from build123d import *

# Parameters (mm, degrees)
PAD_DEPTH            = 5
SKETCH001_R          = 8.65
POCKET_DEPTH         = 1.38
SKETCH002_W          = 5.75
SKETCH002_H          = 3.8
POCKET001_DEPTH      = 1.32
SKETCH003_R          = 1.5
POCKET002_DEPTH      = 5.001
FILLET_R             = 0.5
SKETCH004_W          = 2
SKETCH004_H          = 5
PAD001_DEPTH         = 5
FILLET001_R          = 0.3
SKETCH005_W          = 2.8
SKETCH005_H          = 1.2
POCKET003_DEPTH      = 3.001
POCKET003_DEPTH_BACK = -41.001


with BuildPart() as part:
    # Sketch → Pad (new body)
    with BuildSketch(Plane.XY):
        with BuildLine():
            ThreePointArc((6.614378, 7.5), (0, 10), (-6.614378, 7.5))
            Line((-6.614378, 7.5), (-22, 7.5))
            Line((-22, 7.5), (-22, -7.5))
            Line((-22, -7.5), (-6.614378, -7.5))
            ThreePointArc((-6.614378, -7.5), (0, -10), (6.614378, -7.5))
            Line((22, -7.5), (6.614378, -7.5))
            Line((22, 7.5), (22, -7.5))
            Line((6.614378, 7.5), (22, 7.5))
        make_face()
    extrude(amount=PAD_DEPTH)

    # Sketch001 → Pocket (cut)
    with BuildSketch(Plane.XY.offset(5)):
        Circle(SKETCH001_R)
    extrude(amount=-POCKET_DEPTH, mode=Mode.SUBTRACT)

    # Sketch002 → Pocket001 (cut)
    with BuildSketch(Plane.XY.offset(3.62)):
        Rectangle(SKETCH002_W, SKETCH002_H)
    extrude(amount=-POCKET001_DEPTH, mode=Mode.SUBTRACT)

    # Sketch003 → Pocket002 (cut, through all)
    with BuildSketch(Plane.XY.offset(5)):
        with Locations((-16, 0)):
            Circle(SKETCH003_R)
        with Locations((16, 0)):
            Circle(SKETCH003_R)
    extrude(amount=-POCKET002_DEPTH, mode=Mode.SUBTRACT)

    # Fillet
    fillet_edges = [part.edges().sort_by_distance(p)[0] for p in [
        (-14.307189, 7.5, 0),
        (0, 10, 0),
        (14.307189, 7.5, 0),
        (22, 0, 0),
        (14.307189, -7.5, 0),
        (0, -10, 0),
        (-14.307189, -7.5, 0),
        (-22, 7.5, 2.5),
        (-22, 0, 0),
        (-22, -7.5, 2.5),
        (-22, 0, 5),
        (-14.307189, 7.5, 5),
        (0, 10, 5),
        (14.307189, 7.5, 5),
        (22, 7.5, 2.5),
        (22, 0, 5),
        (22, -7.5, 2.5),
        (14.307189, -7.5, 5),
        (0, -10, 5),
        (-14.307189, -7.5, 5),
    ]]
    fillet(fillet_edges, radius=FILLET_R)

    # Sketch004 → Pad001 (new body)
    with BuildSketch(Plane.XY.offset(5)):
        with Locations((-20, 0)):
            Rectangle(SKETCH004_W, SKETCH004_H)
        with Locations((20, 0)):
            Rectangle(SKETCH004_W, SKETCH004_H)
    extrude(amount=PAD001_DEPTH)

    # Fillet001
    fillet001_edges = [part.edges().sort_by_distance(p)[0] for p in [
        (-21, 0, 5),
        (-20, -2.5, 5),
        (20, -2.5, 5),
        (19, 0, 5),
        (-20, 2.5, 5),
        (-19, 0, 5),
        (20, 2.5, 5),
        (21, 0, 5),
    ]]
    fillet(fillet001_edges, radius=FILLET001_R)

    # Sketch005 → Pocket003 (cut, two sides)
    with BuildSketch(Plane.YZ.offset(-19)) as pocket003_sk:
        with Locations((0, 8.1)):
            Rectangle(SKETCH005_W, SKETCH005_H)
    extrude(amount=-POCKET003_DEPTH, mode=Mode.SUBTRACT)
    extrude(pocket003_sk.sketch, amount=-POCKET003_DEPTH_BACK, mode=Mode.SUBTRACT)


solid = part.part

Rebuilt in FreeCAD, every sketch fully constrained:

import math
import FreeCAD as App
import Part
import Sketcher

V = App.Vector


def edges_at(feature, points):
    """Names of the edges that pass closest to the given points."""
    edges = feature.Shape.Edges
    near = lambda p: min(range(len(edges)), key=lambda i: edges[i].distToShape(Part.Vertex(*p))[0])
    return sorted({f"Edge{near(p) + 1}" for p in points})

doc = App.newDocument("Part")
body = doc.addObject("PartDesign::Body", "Body")

# Sketch on XY plane
sketch1 = body.newObject("Sketcher::SketchObject", "Sketch")
sketch1.AttachmentSupport = (doc.getObject("XY_Plane"), [""])
sketch1.MapMode = "FlatFace"
sketch1.addGeometry(Part.ArcOfCircle(Part.Circle(V(0, 0, 0), V(0, 0, 1), 10), math.radians(49), math.radians(131)), False)
sketch1.addGeometry(Part.LineSegment(V(-7, 8, 0), V(-22, 8, 0)), False)
sketch1.addGeometry(Part.LineSegment(V(-22, 8, 0), V(-22, -8, 0)), False)
sketch1.addGeometry(Part.LineSegment(V(-22, -8, 0), V(-7, -8, 0)), False)
sketch1.addGeometry(Part.ArcOfCircle(Part.Circle(V(0, 0, 0), V(0, 0, 1), 10), math.radians(-131), math.radians(-49)), False)
sketch1.addGeometry(Part.LineSegment(V(7, -8, 0), V(22, -8, 0)), False)
sketch1.addGeometry(Part.LineSegment(V(22, -8, 0), V(22, 8, 0)), False)
sketch1.addGeometry(Part.LineSegment(V(22, 8, 0), V(7, 8, 0)), False)
sketch1.addConstraint(Sketcher.Constraint("Coincident", 0, 2, 1, 1))
sketch1.addConstraint(Sketcher.Constraint("Coincident", 1, 2, 2, 1))
sketch1.addConstraint(Sketcher.Constraint("Coincident", 2, 2, 3, 1))
sketch1.addConstraint(Sketcher.Constraint("Coincident", 3, 2, 4, 1))
sketch1.addConstraint(Sketcher.Constraint("Coincident", 4, 2, 5, 1))
sketch1.addConstraint(Sketcher.Constraint("Coincident", 5, 2, 6, 1))
sketch1.addConstraint(Sketcher.Constraint("Coincident", 6, 2, 7, 1))
sketch1.addConstraint(Sketcher.Constraint("Coincident", 7, 2, 0, 1))
sketch1.addConstraint(Sketcher.Constraint("Horizontal", 1))
sketch1.addConstraint(Sketcher.Constraint("Vertical", 2))
sketch1.addConstraint(Sketcher.Constraint("Horizontal", 3))
sketch1.addConstraint(Sketcher.Constraint("Horizontal", 5))
sketch1.addConstraint(Sketcher.Constraint("Vertical", 6))
sketch1.addConstraint(Sketcher.Constraint("Horizontal", 7))
sketch1.addConstraint(Sketcher.Constraint("Coincident", 0, 3, -1, 1))
sketch1.addConstraint(Sketcher.Constraint("Coincident", 4, 3, -1, 1))
sketch1.addConstraint(Sketcher.Constraint("Equal", 0, 4))
sketch1.addConstraint(Sketcher.Constraint("Symmetric", 1, 2, 5, 2, -1, 1))
sketch1.addConstraint(Sketcher.Constraint("Horizontal", 3, 2, 4, 2))
sketch1.addConstraint(Sketcher.Constraint("Horizontal", 1, 2, 6, 2))
sketch1.addConstraint(Sketcher.Constraint("Radius", 0, 9.999999))
sketch1.addConstraint(Sketcher.Constraint("DistanceY", 2, 2, 2, 1, 15.0))
sketch1.addConstraint(Sketcher.Constraint("DistanceX", 1, 2, -1, 1, 22.0))
pad1 = body.newObject("PartDesign::Pad", "Pad")
pad1.Profile = sketch1
pad1.Length = 5

# Sketch on XY plane
sketch2 = body.newObject("Sketcher::SketchObject", "Sketch001")
sketch2.AttachmentSupport = (doc.getObject("XY_Plane"), [""])
sketch2.MapMode = "FlatFace"
sketch2.AttachmentOffset = App.Placement(V(0, 0, 5), App.Rotation())
sketch2.addGeometry(Part.Circle(V(0, 0, 0), V(0, 0, 1), 9), False)
sketch2.addConstraint(Sketcher.Constraint("Coincident", 0, 3, -1, 1))
sketch2.addConstraint(Sketcher.Constraint("Diameter", 0, 17.3))
pocket1 = body.newObject("PartDesign::Pocket", "Pocket")
pocket1.Profile = sketch2
pocket1.Length = 1.38

# Sketch on XY plane
sketch3 = body.newObject("Sketcher::SketchObject", "Sketch002")
sketch3.AttachmentSupport = (doc.getObject("XY_Plane"), [""])
sketch3.MapMode = "FlatFace"
sketch3.AttachmentOffset = App.Placement(V(0, 0, 3.62), App.Rotation())
sketch3.addGeometry(Part.LineSegment(V(-2.9, 1.9, 0), V(-2.9, -1.9, 0)), False)
sketch3.addGeometry(Part.LineSegment(V(-2.9, -1.9, 0), V(2.9, -1.9, 0)), False)
sketch3.addGeometry(Part.LineSegment(V(2.9, -1.9, 0), V(2.9, 1.9, 0)), False)
sketch3.addGeometry(Part.LineSegment(V(2.9, 1.9, 0), V(-2.9, 1.9, 0)), False)
sketch3.addConstraint(Sketcher.Constraint("Coincident", 0, 2, 1, 1))
sketch3.addConstraint(Sketcher.Constraint("Coincident", 1, 2, 2, 1))
sketch3.addConstraint(Sketcher.Constraint("Coincident", 2, 2, 3, 1))
sketch3.addConstraint(Sketcher.Constraint("Coincident", 3, 2, 0, 1))
sketch3.addConstraint(Sketcher.Constraint("Vertical", 0))
sketch3.addConstraint(Sketcher.Constraint("Horizontal", 1))
sketch3.addConstraint(Sketcher.Constraint("Vertical", 2))
sketch3.addConstraint(Sketcher.Constraint("Horizontal", 3))
sketch3.addConstraint(Sketcher.Constraint("Symmetric", 0, 2, 2, 2, -1, 1))
sketch3.addConstraint(Sketcher.Constraint("DistanceY", 0, 2, 0, 1, 3.8))
sketch3.addConstraint(Sketcher.Constraint("DistanceX", 1, 1, 1, 2, 5.75))
pocket2 = body.newObject("PartDesign::Pocket", "Pocket001")
pocket2.Profile = sketch3
pocket2.Length = 1.32

# Sketch on XY plane
sketch4 = body.newObject("Sketcher::SketchObject", "Sketch003")
sketch4.AttachmentSupport = (doc.getObject("XY_Plane"), [""])
sketch4.MapMode = "FlatFace"
sketch4.AttachmentOffset = App.Placement(V(0, 0, 5), App.Rotation())
sketch4.addGeometry(Part.Circle(V(-16, 0, 0), V(0, 0, 1), 1.5), False)
sketch4.addGeometry(Part.Circle(V(16, 0, 0), V(0, 0, 1), 1.5), False)
sketch4.addConstraint(Sketcher.Constraint("Equal", 0, 1))
sketch4.addConstraint(Sketcher.Constraint("Symmetric", 0, 3, 1, 3, -1, 1))
sketch4.addConstraint(Sketcher.Constraint("PointOnObject", 0, 3, -1))
sketch4.addConstraint(Sketcher.Constraint("Diameter", 0, 3.0))
sketch4.addConstraint(Sketcher.Constraint("DistanceX", 0, 3, -1, 1, 16.0))
pocket3 = body.newObject("PartDesign::Pocket", "Pocket002")
pocket3.Profile = sketch4
pocket3.Type = "ThroughAll"
doc.recompute()

fillet = body.newObject("PartDesign::Fillet", "Fillet")
fillet.Base = (pocket3, edges_at(pocket3, [
    (-14.307, 7.5, 0),
    (0, 10, 0),
    (14.307, 7.5, 0),
    (22, 0, 0),
    (14.307, -7.5, 0),
    (0, -10, 0),
    (-14.307, -7.5, 0),
    (-22, 7.5, 2.5),
    (-22, 0, 0),
    (-22, -7.5, 2.5),
    (-22, 0, 5),
    (-14.307, 7.5, 5),
    (0, 10, 5),
    (14.307, 7.5, 5),
    (22, 7.5, 2.5),
    (22, 0, 5),
    (22, -7.5, 2.5),
    (14.307, -7.5, 5),
    (0, -10, 5),
    (-14.307, -7.5, 5),
]))
fillet.Radius = 0.5

# Sketch on XY plane
sketch5 = body.newObject("Sketcher::SketchObject", "Sketch004")
sketch5.AttachmentSupport = (doc.getObject("XY_Plane"), [""])
sketch5.MapMode = "FlatFace"
sketch5.AttachmentOffset = App.Placement(V(0, 0, 5), App.Rotation())
sketch5.addGeometry(Part.LineSegment(V(-21, 2.5, 0), V(-21, -2.5, 0)), False)
sketch5.addGeometry(Part.LineSegment(V(-21, -2.5, 0), V(-19, -2.5, 0)), False)
sketch5.addGeometry(Part.LineSegment(V(-19, -2.5, 0), V(-19, 2.5, 0)), False)
sketch5.addGeometry(Part.LineSegment(V(-19, 2.5, 0), V(-21, 2.5, 0)), False)
sketch5.addGeometry(Part.LineSegment(V(19, 2.5, 0), V(19, -2.5, 0)), False)
sketch5.addGeometry(Part.LineSegment(V(19, -2.5, 0), V(21, -2.5, 0)), False)
sketch5.addGeometry(Part.LineSegment(V(21, -2.5, 0), V(21, 2.5, 0)), False)
sketch5.addGeometry(Part.LineSegment(V(21, 2.5, 0), V(19, 2.5, 0)), False)
sketch5.addConstraint(Sketcher.Constraint("Coincident", 0, 2, 1, 1))
sketch5.addConstraint(Sketcher.Constraint("Coincident", 1, 2, 2, 1))
sketch5.addConstraint(Sketcher.Constraint("Coincident", 2, 2, 3, 1))
sketch5.addConstraint(Sketcher.Constraint("Coincident", 3, 2, 0, 1))
sketch5.addConstraint(Sketcher.Constraint("Coincident", 4, 2, 5, 1))
sketch5.addConstraint(Sketcher.Constraint("Coincident", 5, 2, 6, 1))
sketch5.addConstraint(Sketcher.Constraint("Coincident", 6, 2, 7, 1))
sketch5.addConstraint(Sketcher.Constraint("Coincident", 7, 2, 4, 1))
sketch5.addConstraint(Sketcher.Constraint("Vertical", 0))
sketch5.addConstraint(Sketcher.Constraint("Horizontal", 1))
sketch5.addConstraint(Sketcher.Constraint("Vertical", 2))
sketch5.addConstraint(Sketcher.Constraint("Horizontal", 3))
sketch5.addConstraint(Sketcher.Constraint("Vertical", 4))
sketch5.addConstraint(Sketcher.Constraint("Horizontal", 5))
sketch5.addConstraint(Sketcher.Constraint("Vertical", 6))
sketch5.addConstraint(Sketcher.Constraint("Horizontal", 7))
sketch5.addConstraint(Sketcher.Constraint("Symmetric", 2, 2, 4, 2, -1, 1))
sketch5.addConstraint(Sketcher.Constraint("Symmetric", 0, 2, 6, 2, -1, 1))
sketch5.addConstraint(Sketcher.Constraint("Horizontal", 1, 2, 4, 2))
sketch5.addConstraint(Sketcher.Constraint("DistanceX", 1, 1, 1, 2, 2.0))
sketch5.addConstraint(Sketcher.Constraint("DistanceY", 0, 2, 0, 1, 5.0))
sketch5.addConstraint(Sketcher.Constraint("DistanceX", 0, 2, -1, 1, 21.0))
pad2 = body.newObject("PartDesign::Pad", "Pad001")
pad2.Profile = sketch5
pad2.Length = 5
doc.recompute()

fillet2 = body.newObject("PartDesign::Fillet", "Fillet001")
fillet2.Base = (pad2, edges_at(pad2, [
    (-21, 0, 5),
    (-20, -2.5, 5),
    (20, -2.5, 5),
    (19, 0, 5),
    (-20, 2.5, 5),
    (-19, 0, 5),
    (20, 2.5, 5),
    (21, 0, 5),
]))
fillet2.Radius = 0.3

# Sketch on YZ plane
sketch6 = body.newObject("Sketcher::SketchObject", "Sketch005")
sketch6.AttachmentSupport = (doc.getObject("YZ_Plane"), [""])
sketch6.MapMode = "FlatFace"
sketch6.AttachmentOffset = App.Placement(V(0, 0, -19), App.Rotation())
sketch6.addGeometry(Part.LineSegment(V(-1.4, 8.7, 0), V(-1.4, 7.5, 0)), False)
sketch6.addGeometry(Part.LineSegment(V(-1.4, 7.5, 0), V(1.4, 7.5, 0)), False)
sketch6.addGeometry(Part.LineSegment(V(1.4, 7.5, 0), V(1.4, 8.7, 0)), False)
sketch6.addGeometry(Part.LineSegment(V(1.4, 8.7, 0), V(-1.4, 8.7, 0)), False)
sketch6.addConstraint(Sketcher.Constraint("Coincident", 0, 2, 1, 1))
sketch6.addConstraint(Sketcher.Constraint("Coincident", 1, 2, 2, 1))
sketch6.addConstraint(Sketcher.Constraint("Coincident", 2, 2, 3, 1))
sketch6.addConstraint(Sketcher.Constraint("Coincident", 3, 2, 0, 1))
sketch6.addConstraint(Sketcher.Constraint("Vertical", 0))
sketch6.addConstraint(Sketcher.Constraint("Horizontal", 1))
sketch6.addConstraint(Sketcher.Constraint("Vertical", 2))
sketch6.addConstraint(Sketcher.Constraint("Horizontal", 3))
sketch6.addConstraint(Sketcher.Constraint("DistanceX", 1, 1, 1, 2, 2.8))
sketch6.addConstraint(Sketcher.Constraint("DistanceY", 0, 2, 0, 1, 1.2))
sketch6.addConstraint(Sketcher.Constraint("DistanceX", 0, 2, -1, 1, 1.4))
sketch6.addConstraint(Sketcher.Constraint("DistanceY", -1, 1, 0, 2, 7.5))
pocket4 = body.newObject("PartDesign::Pocket", "Pocket003")
pocket4.Profile = sketch6
pocket4.Type = "ThroughAll"
pocket4.Midplane = True

doc.recompute()
